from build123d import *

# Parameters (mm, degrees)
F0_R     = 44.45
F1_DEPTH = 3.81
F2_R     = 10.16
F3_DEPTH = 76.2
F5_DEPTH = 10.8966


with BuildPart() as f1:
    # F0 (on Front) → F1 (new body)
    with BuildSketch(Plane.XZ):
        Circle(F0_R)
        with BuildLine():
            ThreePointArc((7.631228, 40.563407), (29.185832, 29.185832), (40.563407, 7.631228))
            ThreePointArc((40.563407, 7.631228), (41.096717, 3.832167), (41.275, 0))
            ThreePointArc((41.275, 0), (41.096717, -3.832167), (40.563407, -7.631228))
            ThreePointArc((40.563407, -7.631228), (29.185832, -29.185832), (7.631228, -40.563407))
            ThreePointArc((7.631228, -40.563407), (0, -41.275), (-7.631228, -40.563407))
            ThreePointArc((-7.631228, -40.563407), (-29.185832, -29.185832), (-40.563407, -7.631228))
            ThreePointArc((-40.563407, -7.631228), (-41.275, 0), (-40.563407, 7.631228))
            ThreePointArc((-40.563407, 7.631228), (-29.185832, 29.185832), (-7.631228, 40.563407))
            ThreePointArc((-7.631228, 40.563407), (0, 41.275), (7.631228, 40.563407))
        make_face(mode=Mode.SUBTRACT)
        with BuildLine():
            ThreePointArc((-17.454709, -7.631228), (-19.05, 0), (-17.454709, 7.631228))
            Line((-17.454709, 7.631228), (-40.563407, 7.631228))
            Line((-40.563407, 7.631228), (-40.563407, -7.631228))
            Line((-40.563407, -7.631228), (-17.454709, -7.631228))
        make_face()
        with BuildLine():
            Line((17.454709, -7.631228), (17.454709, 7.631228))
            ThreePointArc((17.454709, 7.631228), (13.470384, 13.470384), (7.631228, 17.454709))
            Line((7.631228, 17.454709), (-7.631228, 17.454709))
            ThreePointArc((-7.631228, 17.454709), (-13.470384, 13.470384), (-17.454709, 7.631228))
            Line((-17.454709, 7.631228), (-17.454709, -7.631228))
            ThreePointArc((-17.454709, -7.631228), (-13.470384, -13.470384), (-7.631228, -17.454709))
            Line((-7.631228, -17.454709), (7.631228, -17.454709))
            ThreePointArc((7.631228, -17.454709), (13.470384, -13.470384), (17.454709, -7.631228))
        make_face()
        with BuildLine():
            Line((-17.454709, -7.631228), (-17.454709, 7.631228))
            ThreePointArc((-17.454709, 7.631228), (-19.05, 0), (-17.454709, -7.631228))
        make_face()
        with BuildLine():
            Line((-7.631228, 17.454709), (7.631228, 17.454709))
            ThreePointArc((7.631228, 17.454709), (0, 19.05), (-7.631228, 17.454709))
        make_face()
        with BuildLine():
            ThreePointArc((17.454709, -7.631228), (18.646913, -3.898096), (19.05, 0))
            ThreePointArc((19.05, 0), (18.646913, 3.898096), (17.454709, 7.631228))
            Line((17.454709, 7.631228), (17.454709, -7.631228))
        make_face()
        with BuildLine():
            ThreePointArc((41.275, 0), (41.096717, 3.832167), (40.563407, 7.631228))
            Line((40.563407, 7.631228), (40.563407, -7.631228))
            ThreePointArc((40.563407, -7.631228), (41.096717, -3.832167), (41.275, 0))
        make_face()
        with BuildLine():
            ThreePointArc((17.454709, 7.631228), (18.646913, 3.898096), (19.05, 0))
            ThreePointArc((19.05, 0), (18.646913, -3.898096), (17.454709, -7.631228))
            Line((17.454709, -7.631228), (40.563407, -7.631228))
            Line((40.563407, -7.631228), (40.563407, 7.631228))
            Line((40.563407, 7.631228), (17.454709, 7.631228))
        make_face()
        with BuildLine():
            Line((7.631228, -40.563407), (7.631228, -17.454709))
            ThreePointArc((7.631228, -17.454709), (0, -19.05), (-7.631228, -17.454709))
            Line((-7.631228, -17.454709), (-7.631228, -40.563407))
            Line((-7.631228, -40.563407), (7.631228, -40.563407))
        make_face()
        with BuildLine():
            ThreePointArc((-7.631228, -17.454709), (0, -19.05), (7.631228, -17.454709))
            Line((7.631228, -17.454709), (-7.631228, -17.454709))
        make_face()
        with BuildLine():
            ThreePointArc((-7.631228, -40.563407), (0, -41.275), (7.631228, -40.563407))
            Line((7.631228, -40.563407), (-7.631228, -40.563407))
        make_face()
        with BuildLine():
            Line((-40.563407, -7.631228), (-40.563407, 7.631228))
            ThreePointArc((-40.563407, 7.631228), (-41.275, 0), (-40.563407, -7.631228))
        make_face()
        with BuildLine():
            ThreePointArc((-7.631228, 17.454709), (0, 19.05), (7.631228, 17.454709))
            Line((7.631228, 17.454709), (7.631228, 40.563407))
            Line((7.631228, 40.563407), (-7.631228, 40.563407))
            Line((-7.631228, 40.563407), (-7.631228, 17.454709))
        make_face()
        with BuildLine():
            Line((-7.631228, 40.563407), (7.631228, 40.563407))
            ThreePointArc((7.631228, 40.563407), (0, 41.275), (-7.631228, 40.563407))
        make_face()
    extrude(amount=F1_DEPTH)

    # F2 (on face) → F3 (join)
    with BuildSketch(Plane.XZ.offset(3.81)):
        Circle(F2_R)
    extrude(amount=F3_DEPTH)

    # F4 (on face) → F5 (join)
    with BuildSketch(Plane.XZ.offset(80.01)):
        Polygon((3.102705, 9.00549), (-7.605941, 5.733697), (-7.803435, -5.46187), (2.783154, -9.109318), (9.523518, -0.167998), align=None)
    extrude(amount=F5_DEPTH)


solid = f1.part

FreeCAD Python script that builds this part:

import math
import FreeCAD as App
import Part
import Sketcher
from FreeCAD import Vector
Q = App.Units.Quantity


def add_polygon(sketch, points):
    """Adds a closed chain of lines whose ends are joined by coincident constraints."""
    first, n = sketch.GeometryCount, len(points)
    for a, b in zip(points, points[1:] + points[:1]):
        sketch.addGeometry(Part.LineSegment(App.Vector(*a, 0), App.Vector(*b, 0)), False)
    for i in range(n):
        sketch.addConstraint(Sketcher.Constraint("Coincident", first + i, 2, first + (i + 1) % n, 1))

doc = App.newDocument("Part")
body = doc.addObject("PartDesign::Body", "Body")

# Sketch on XZ plane
sketch1 = body.newObject("Sketcher::SketchObject", "Sketch")
sketch1.AttachmentSupport = (doc.getObject("XZ_Plane"), [""])
sketch1.MapMode = "FlatFace"
sketch1.addGeometry([
    Part.Circle(Vector(0, 0, 0), Vector(0, 0, 1), 44),  # 0
    Part.ArcOfCircle(Part.Circle(Vector(0, 0, 0), Vector(0, 0, 1), 41), math.radians(-169), math.radians(-101)),  # 1
    Part.LineSegment(Vector(-41, -8, 0), Vector(-17, -8, 0)),  # 2
    Part.ArcOfCircle(Part.Circle(Vector(0, 0, 0), Vector(0, 0, 1), 19), math.radians(-156), math.radians(-114)),  # 3
    Part.LineSegment(Vector(-8, -17, 0), Vector(-8, -41, 0)),  # 4
    Part.ArcOfCircle(Part.Circle(Vector(0, 0, 0), Vector(0, 0, 1), 41), math.radians(-79), math.radians(-11)),  # 5
    Part.LineSegment(Vector(8, -41, 0), Vector(8, -17, 0)),  # 6
    Part.ArcOfCircle(Part.Circle(Vector(0, 0, 0), Vector(0, 0, 1), 19), math.radians(-66), math.radians(-24)),  # 7
    Part.LineSegment(Vector(17, -8, 0), Vector(41, -8, 0)),  # 8
    Part.ArcOfCircle(Part.Circle(Vector(0, 0, 0), Vector(0, 0, 1), 41), math.radians(101), math.radians(169)),  # 9
    Part.LineSegment(Vector(-8, 41, 0), Vector(-8, 17, 0)),  # 10
    Part.ArcOfCircle(Part.Circle(Vector(0, 0, 0), Vector(0, 0, 1), 19), math.radians(114), math.radians(156)),  # 11
    Part.LineSegment(Vector(-17, 8, 0), Vector(-41, 8, 0)),  # 12
    Part.LineSegment(Vector(8, 17, 0), Vector(8, 41, 0)),  # 13
    Part.ArcOfCircle(Part.Circle(Vector(0, 0, 0), Vector(0, 0, 1), 41), math.radians(11), math.radians(79)),  # 14
    Part.LineSegment(Vector(41, 8, 0), Vector(17, 8, 0)),  # 15
    Part.ArcOfCircle(Part.Circle(Vector(0, 0, 0), Vector(0, 0, 1), 19), math.radians(24), math.radians(66)),  # 16
], False)
sketch1.addConstraint([
    Sketcher.Constraint("Coincident", 1, 1, 2, 1),
    Sketcher.Constraint("Coincident", 2, 2, 3, 1),
    Sketcher.Constraint("Coincident", 3, 2, 4, 1),
    Sketcher.Constraint("Coincident", 4, 2, 1, 2),
    Sketcher.Constraint("Coincident", 5, 1, 6, 1),
    Sketcher.Constraint("Coincident", 6, 2, 7, 1),
    Sketcher.Constraint("Coincident", 7, 2, 8, 1),
    Sketcher.Constraint("Coincident", 8, 2, 5, 2),
    Sketcher.Constraint("Coincident", 9, 1, 10, 1),
    Sketcher.Constraint("Coincident", 10, 2, 11, 1),
    Sketcher.Constraint("Coincident", 11, 2, 12, 1),
    Sketcher.Constraint("Coincident", 12, 2, 9, 2),
    Sketcher.Constraint("Coincident", 13, 2, 14, 2),
    Sketcher.Constraint("Coincident", 14, 1, 15, 1),
    Sketcher.Constraint("Coincident", 15, 2, 16, 1),
    Sketcher.Constraint("Coincident", 16, 2, 13, 1),
    Sketcher.Constraint("Horizontal", 2),
    Sketcher.Constraint("Vertical", 4),
    Sketcher.Constraint("Vertical", 6),
    Sketcher.Constraint("Horizontal", 8),
    Sketcher.Constraint("Vertical", 10),
    Sketcher.Constraint("Horizontal", 12),
    Sketcher.Constraint("Vertical", 13),
    Sketcher.Constraint("Horizontal", 15),
    Sketcher.Constraint("Coincident", 0, 3, -1, 1),
    Sketcher.Constraint("Coincident", 1, 3, -1, 1),
    Sketcher.Constraint("Coincident", 3, 3, -1, 1),
    Sketcher.Constraint("Coincident", 5, 3, -1, 1),
    Sketcher.Constraint("Coincident", 7, 3, -1, 1),
    Sketcher.Constraint("Coincident", 9, 3, -1, 1),
    Sketcher.Constraint("Coincident", 11, 3, -1, 1),
    Sketcher.Constraint("Coincident", 14, 3, -1, 1),
    Sketcher.Constraint("Coincident", 16, 3, -1, 1),
    Sketcher.Constraint("Equal", 1, 5),
    Sketcher.Constraint("Equal", 3, 7),
    Sketcher.Constraint("Equal", 5, 9),
    Sketcher.Constraint("Equal", 7, 11),
    Sketcher.Constraint("Equal", 9, 14),
    Sketcher.Constraint("Equal", 11, 16),
    Sketcher.Constraint("Horizontal", 4, 2, 5, 1),
    Sketcher.Constraint("Horizontal", 2, 2, 7, 2),
    Sketcher.Constraint("Horizontal", 9, 1, 13, 2),
    Sketcher.Constraint("Horizontal", 12, 2, 14, 1),
    Sketcher.Constraint("Vertical", 4, 2, 9, 1),
    Sketcher.Constraint("Vertical", 2, 2, 11, 2),
    Sketcher.Constraint("Equal", 15, 4),
    Sketcher.Constraint("Diameter", 0, Q("3.5 in")),
    Sketcher.Constraint("Radius", 1, Q("1.6250001 in")),
    Sketcher.Constraint("Radius", 3, Q("19.050006 mm")),
    Sketcher.Constraint("DistanceY", 4, 2, 3, 2, Q("23.108698 mm")),
])
pad1 = body.newObject("PartDesign::Pad", "Pad")
pad1.Profile = sketch1
pad1.Length = Q("0.15 in")

# Sketch on XZ plane
sketch2 = body.newObject("Sketcher::SketchObject", "Sketch001")
sketch2.AttachmentSupport = (doc.getObject("XZ_Plane"), [""])
sketch2.MapMode = "FlatFace"
sketch2.AttachmentOffset = App.Placement(Vector(0, 0, 0.15 * 25.4), App.Rotation())
sketch2.addGeometry(Part.Circle(Vector(0, 0, 0), Vector(0, 0, 1), 10), False)
sketch2.addConstraint([
    Sketcher.Constraint("Coincident", 0, 3, -1, 1),
    Sketcher.Constraint("Diameter", 0, Q("0.8 in")),
])
pad2 = body.newObject("PartDesign::Pad", "Pad001")
pad2.Profile = sketch2
pad2.Length = Q("3 in")

# Sketch on XZ plane
sketch3 = body.newObject("Sketcher::SketchObject", "Sketch002")
sketch3.AttachmentSupport = (doc.getObject("XZ_Plane"), [""])
sketch3.MapMode = "FlatFace"
sketch3.AttachmentOffset = App.Placement(Vector(0, 0, 3.15 * 25.4), App.Rotation())
add_polygon(sketch3, [(3, 9), (-8, 6), (-8, -5), (3, -9), (10, 0)])  # lines 0-4
sketch3.addConstraint([
    Sketcher.Constraint("Equal", 0, 1),
    Sketcher.Constraint("Equal", 1, 2),
    Sketcher.Constraint("Equal", 2, 3),
    Sketcher.Constraint("Equal", 3, 4),
    Sketcher.Constraint("Distance", 0, Q("11.197309 mm")),
    Sketcher.Constraint("DistanceX", 0, 2, -1, 1, Q("7.605941 mm")),
    Sketcher.Constraint("DistanceY", 1, 2, -1, 1, Q("5.46187 mm")),
    Sketcher.Constraint("DistanceY", -1, 1, 4, 2, Q("9.00549 mm")),
    Sketcher.Constraint("DistanceX", 1, 2, 2, 2, Q("10.586589 mm")),
    Sketcher.Constraint("DistanceY", 2, 2, 3, 2, Q("8.94132 mm")),
])
pad3 = body.newObject("PartDesign::Pad", "Pad002")
pad3.Profile = sketch3
pad3.Length = Q("0.429 in")

doc.recompute()
